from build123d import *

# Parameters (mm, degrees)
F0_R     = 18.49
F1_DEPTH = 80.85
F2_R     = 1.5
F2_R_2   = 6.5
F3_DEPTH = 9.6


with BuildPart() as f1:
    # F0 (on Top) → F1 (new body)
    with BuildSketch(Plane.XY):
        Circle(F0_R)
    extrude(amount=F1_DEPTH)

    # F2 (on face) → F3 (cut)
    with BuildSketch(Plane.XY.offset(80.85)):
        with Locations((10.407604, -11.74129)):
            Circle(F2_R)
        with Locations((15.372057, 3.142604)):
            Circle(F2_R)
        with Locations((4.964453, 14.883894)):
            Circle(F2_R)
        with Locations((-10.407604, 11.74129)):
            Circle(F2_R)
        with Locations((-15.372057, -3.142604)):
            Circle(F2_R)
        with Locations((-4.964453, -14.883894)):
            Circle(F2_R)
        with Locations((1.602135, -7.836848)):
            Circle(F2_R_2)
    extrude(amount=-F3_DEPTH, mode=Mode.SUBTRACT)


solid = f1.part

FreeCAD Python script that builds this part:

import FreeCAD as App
import Part
import Sketcher
from FreeCAD import Vector

doc = App.newDocument("Part")
body = doc.addObject("PartDesign::Body", "Body")

sketch1 = body.newObject("Sketcher::SketchObject", "Sketch")
sketch1.AttachmentSupport = (doc.getObject("XY_Plane"), [""])
sketch1.MapMode = "FlatFace"
sketch1.addGeometry(Part.Circle(Vector(0, 0, 0), Vector(0, 0, 1), 18), False)
sketch1.addConstraint(Sketcher.Constraint("Coincident", 0, 3, -1, 1))
sketch1.addConstraint(Sketcher.Constraint("Diameter", 0, 36.98))
pad1 = body.newObject("PartDesign::Pad", "Pad")
pad1.Profile = sketch1
pad1.Length = 80.85

sketch2 = body.newObject("Sketcher::SketchObject", "Sketch001")
sketch2.AttachmentSupport = (doc.getObject("XY_Plane"), [""])
sketch2.MapMode = "FlatFace"
sketch2.AttachmentOffset = App.Placement(Vector(0, 0, 80.85), App.Rotation())
sketch2.addGeometry(Part.Circle(Vector(10.4, -11.7, 0), Vector(0, 0, 1), 1.5), False)
sketch2.addGeometry(Part.Circle(Vector(15.4, 3.1, 0), Vector(0, 0, 1), 1.5), False)
sketch2.addGeometry(Part.Circle(Vector(5, 14.9, 0), Vector(0, 0, 1), 1.5), False)
sketch2.addGeometry(Part.Circle(Vector(-10.4, 11.7, 0), Vector(0, 0, 1), 1.5), False)
sketch2.addGeometry(Part.Circle(Vector(-15.4, -3.1, 0), Vector(0, 0, 1), 1.5), False)
sketch2.addGeometry(Part.Circle(Vector(-5, -14.9, 0), Vector(0, 0, 1), 1.5), False)
sketch2.addGeometry(Part.Circle(Vector(1.6, -7.8, 0), Vector(0, 0, 1), 6.5), False)
sketch2.addConstraint(Sketcher.Constraint("Equal", 0, 1))
sketch2.addConstraint(Sketcher.Constraint("Equal", 1, 2))
sketch2.addConstraint(Sketcher.Constraint("Equal", 2, 3))
sketch2.addConstraint(Sketcher.Constraint("Equal", 3, 4))
sketch2.addConstraint(Sketcher.Constraint("Equal", 4, 5))
sketch2.addConstraint(Sketcher.Constraint("Symmetric", 0, 3, 3, 3, -1, 1))
sketch2.addConstraint(Sketcher.Constraint("Symmetric", 1, 3, 4, 3, -1, 1))
sketch2.addConstraint(Sketcher.Constraint("Symmetric", 2, 3, 5, 3, -1, 1))
sketch2.addConstraint(Sketcher.Constraint("Diameter", 0, 3.0))
sketch2.addConstraint(Sketcher.Constraint("Diameter", 6, 13.0))
sketch2.addConstraint(Sketcher.Constraint("DistanceY", 4, 3, 2, 3, 18.026498))
sketch2.addConstraint(Sketcher.Constraint("DistanceY", 0, 3, -1, 1, 11.74129))
sketch2.addConstraint(Sketcher.Constraint("DistanceY", 1, 3, 2, 3, 11.74129))
sketch2.addConstraint(Sketcher.Constraint("DistanceX", 2, 3, 0, 3, 5.443151))
sketch2.addConstraint(Sketcher.Constraint("DistanceX", 3, 3, 1, 3, 25.779661))
sketch2.addConstraint(Sketcher.Constraint("DistanceX", 6, 3, 0, 3, 8.805469))
sketch2.addConstraint(Sketcher.Constraint("DistanceY", 0, 3, 6, 3, 3.904442))
sketch2.addConstraint(Sketcher.Constraint("DistanceX", 6, 3, 1, 3, 13.769922))
pocket1 = body.newObject("PartDesign::Pocket", "Pocket")
pocket1.Profile = sketch2
pocket1.Length = 9.6

doc.recompute()
